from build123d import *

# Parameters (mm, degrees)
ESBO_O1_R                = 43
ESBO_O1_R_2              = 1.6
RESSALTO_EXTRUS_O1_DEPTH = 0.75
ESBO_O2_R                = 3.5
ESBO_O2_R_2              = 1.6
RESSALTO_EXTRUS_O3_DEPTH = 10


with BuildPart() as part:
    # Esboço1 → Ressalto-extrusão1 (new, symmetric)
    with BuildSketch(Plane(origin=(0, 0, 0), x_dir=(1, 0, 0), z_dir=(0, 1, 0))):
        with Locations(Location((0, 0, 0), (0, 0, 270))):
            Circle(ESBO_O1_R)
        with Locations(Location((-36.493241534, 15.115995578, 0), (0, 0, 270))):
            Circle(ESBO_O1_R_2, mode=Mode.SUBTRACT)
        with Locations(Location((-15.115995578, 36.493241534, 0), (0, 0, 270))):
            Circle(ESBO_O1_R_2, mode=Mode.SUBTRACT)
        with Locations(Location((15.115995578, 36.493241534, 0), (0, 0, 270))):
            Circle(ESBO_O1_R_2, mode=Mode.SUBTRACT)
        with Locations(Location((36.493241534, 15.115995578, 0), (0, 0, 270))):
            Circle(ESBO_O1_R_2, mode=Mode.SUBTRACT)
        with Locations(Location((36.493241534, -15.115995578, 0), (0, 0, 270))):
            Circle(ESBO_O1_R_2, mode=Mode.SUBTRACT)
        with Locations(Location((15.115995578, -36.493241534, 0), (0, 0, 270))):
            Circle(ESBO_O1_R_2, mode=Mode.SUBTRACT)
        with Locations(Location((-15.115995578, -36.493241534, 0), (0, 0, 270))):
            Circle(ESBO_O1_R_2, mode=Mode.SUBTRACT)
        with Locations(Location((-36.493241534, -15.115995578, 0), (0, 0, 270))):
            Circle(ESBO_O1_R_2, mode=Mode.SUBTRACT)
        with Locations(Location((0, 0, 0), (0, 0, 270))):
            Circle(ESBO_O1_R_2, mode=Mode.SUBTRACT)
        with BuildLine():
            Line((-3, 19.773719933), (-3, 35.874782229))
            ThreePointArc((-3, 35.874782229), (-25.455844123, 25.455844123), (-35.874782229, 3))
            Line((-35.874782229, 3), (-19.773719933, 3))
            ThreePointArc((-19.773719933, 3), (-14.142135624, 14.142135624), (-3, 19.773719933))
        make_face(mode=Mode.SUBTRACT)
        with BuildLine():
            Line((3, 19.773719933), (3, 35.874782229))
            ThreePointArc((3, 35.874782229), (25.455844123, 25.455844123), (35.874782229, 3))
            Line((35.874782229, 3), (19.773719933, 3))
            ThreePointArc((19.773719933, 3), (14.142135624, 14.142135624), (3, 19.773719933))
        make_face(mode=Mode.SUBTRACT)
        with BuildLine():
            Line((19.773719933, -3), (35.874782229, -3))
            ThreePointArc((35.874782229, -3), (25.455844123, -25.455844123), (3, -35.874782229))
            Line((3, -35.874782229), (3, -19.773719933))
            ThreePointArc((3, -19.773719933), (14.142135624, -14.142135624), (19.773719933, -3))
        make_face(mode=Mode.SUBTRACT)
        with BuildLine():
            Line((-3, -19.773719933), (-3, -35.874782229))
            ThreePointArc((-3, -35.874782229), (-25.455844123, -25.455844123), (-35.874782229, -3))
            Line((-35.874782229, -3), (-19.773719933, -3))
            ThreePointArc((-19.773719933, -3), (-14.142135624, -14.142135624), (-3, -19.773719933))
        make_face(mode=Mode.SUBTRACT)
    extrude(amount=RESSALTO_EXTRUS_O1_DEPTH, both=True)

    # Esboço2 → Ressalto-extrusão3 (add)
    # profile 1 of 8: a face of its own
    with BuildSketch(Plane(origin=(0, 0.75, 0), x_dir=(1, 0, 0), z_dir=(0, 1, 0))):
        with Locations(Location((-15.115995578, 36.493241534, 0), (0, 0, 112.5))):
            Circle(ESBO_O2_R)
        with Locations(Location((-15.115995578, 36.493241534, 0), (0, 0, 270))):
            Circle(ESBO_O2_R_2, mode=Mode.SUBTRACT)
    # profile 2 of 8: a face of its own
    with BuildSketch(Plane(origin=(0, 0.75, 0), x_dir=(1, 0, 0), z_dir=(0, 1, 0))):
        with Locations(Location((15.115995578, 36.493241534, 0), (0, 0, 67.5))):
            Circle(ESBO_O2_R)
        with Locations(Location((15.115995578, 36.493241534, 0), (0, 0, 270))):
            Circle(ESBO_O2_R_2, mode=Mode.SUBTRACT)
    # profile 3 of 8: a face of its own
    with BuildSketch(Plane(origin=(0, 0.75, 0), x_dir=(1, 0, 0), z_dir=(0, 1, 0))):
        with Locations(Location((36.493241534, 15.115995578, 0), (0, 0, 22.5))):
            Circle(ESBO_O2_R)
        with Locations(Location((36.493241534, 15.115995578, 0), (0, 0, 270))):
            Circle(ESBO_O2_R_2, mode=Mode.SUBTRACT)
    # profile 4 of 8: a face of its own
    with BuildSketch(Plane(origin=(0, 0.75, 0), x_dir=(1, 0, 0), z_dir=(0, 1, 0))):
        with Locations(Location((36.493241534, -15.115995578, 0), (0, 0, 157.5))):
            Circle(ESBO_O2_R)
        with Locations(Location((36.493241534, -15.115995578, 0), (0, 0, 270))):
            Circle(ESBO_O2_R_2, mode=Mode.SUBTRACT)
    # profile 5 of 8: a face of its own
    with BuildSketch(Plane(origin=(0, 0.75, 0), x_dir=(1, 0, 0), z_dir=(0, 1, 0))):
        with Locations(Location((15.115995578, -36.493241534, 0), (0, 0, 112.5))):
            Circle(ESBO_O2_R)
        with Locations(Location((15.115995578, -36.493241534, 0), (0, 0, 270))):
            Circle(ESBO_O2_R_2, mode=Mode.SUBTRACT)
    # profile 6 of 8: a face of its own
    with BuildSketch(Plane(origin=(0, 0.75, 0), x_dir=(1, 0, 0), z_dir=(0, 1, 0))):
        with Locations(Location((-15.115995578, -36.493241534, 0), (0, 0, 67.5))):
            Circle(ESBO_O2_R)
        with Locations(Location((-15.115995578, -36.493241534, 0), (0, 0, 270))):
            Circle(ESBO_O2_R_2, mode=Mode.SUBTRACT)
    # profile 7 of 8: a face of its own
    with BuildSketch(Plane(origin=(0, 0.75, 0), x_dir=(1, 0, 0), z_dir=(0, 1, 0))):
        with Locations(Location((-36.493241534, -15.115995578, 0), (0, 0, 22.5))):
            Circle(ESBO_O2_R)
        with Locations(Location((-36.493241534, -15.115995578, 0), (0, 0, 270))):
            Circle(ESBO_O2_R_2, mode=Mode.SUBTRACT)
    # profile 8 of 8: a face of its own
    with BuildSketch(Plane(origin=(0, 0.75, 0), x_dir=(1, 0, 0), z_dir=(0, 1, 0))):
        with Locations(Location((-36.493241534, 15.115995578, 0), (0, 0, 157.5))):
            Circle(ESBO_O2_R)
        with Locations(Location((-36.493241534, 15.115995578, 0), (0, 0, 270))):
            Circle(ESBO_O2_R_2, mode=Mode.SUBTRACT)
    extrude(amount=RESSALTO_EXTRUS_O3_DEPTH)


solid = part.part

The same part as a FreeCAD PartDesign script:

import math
import FreeCAD as App
import Part
import Sketcher
from FreeCAD import Vector
Q = App.Units.Quantity

doc = App.newDocument("Part")
body = doc.addObject("PartDesign::Body", "Body")

# Sketch on XZ plane
sketch1 = body.newObject("Sketcher::SketchObject", "Sketch")
sketch1.AttachmentSupport = (doc.getObject("XZ_Plane"), [""])
sketch1.MapMode = "FlatFace"
sketch1.addGeometry(Part.Circle(Vector(0, 0, 0), Vector(0, 0, 1), 43), False)
sketch1.addGeometry(Part.LineSegment(Vector(-3, -35.9, 0), Vector(-3, -19.8, 0)), False)
sketch1.addGeometry(Part.ArcOfCircle(Part.Circle(Vector(0, 0, 0), Vector(0, 0, 1), 20), math.radians(-171), math.radians(-99)), False)
sketch1.addGeometry(Part.LineSegment(Vector(-19.8, -3, 0), Vector(-35.9, -3, 0)), False)
sketch1.addGeometry(Part.ArcOfCircle(Part.Circle(Vector(0, 0, 0), Vector(0, 0, 1), 36), math.radians(-175), math.radians(-95)), False)
sketch1.addGeometry(Part.Circle(Vector(-36.5, -15.1, 0), Vector(0, 0, 1), 1.6), False)
sketch1.addGeometry(Part.Circle(Vector(-15.1, -36.5, 0), Vector(0, 0, 1), 1.6), False)
sketch1.addGeometry(Part.Circle(Vector(-36.5, 15.1, 0), Vector(0, 0, 1), 1.6), False)
sketch1.addGeometry(Part.ArcOfCircle(Part.Circle(Vector(0, 0, 0), Vector(0, 0, 1), 20), math.radians(99), math.radians(171)), False)
sketch1.addGeometry(Part.LineSegment(Vector(-3, 19.8, 0), Vector(-3, 35.9, 0)), False)
sketch1.addGeometry(Part.ArcOfCircle(Part.Circle(Vector(0, 0, 0), Vector(0, 0, 1), 36), math.radians(95), math.radians(175)), False)
sketch1.addGeometry(Part.LineSegment(Vector(-35.9, 3, 0), Vector(-19.8, 3, 0)), False)
sketch1.addGeometry(Part.Circle(Vector(-15.1, 36.5, 0), Vector(0, 0, 1), 1.6), False)
sketch1.addGeometry(Part.Circle(Vector(15.1, -36.5, 0), Vector(0, 0, 1), 1.6), False)
sketch1.addGeometry(Part.ArcOfCircle(Part.Circle(Vector(0, 0, 0), Vector(0, 0, 1), 20), math.radians(-81), math.radians(-9)), False)
sketch1.addGeometry(Part.LineSegment(Vector(3, -19.8, 0), Vector(3, -35.9, 0)), False)
sketch1.addGeometry(Part.ArcOfCircle(Part.Circle(Vector(0, 0, 0), Vector(0, 0, 1), 36), math.radians(-85), math.radians(-5)), False)
sketch1.addGeometry(Part.LineSegment(Vector(35.9, -3, 0), Vector(19.8, -3, 0)), False)
sketch1.addGeometry(Part.Circle(Vector(36.5, -15.1, 0), Vector(0, 0, 1), 1.6), False)
sketch1.addGeometry(Part.Circle(Vector(0, 0, 0), Vector(0, 0, 1), 1.6), False)
sketch1.addGeometry(Part.Circle(Vector(15.1, 36.5, 0), Vector(0, 0, 1), 1.6), False)
sketch1.addGeometry(Part.Circle(Vector(36.5, 15.1, 0), Vector(0, 0, 1), 1.6), False)
sketch1.addGeometry(Part.ArcOfCircle(Part.Circle(Vector(0, 0, 0), Vector(0, 0, 1), 20), math.radians(9), math.radians(81)), False)
sketch1.addGeometry(Part.LineSegment(Vector(19.8, 3, 0), Vector(35.9, 3, 0)), False)
sketch1.addGeometry(Part.ArcOfCircle(Part.Circle(Vector(0, 0, 0), Vector(0, 0, 1), 36), math.radians(5), math.radians(85)), False)
sketch1.addGeometry(Part.LineSegment(Vector(3, 35.9, 0), Vector(3, 19.8, 0)), False)
sketch1.addConstraint(Sketcher.Constraint("Coincident", 1, 2, 2, 2))
sketch1.addConstraint(Sketcher.Constraint("Coincident", 2, 1, 3, 1))
sketch1.addConstraint(Sketcher.Constraint("Coincident", 3, 2, 4, 1))
sketch1.addConstraint(Sketcher.Constraint("Coincident", 4, 2, 1, 1))
sketch1.addConstraint(Sketcher.Constraint("Coincident", 8, 1, 9, 1))
sketch1.addConstraint(Sketcher.Constraint("Coincident", 9, 2, 10, 1))
sketch1.addConstraint(Sketcher.Constraint("Coincident", 10, 2, 11, 1))
sketch1.addConstraint(Sketcher.Constraint("Coincident", 11, 2, 8, 2))
sketch1.addConstraint(Sketcher.Constraint("Coincident", 14, 1, 15, 1))
sketch1.addConstraint(Sketcher.Constraint("Coincident", 15, 2, 16, 1))
sketch1.addConstraint(Sketcher.Constraint("Coincident", 16, 2, 17, 1))
sketch1.addConstraint(Sketcher.Constraint("Coincident", 17, 2, 14, 2))
sketch1.addConstraint(Sketcher.Constraint("Coincident", 22, 1, 23, 1))
sketch1.addConstraint(Sketcher.Constraint("Coincident", 23, 2, 24, 1))
sketch1.addConstraint(Sketcher.Constraint("Coincident", 24, 2, 25, 1))
sketch1.addConstraint(Sketcher.Constraint("Coincident", 25, 2, 22, 2))
sketch1.addConstraint(Sketcher.Constraint("Vertical", 1))
sketch1.addConstraint(Sketcher.Constraint("Horizontal", 3))
sketch1.addConstraint(Sketcher.Constraint("Vertical", 9))
sketch1.addConstraint(Sketcher.Constraint("Horizontal", 11))
sketch1.addConstraint(Sketcher.Constraint("Vertical", 15))
sketch1.addConstraint(Sketcher.Constraint("Horizontal", 17))
sketch1.addConstraint(Sketcher.Constraint("Horizontal", 23))
sketch1.addConstraint(Sketcher.Constraint("Vertical", 25))
sketch1.addConstraint(Sketcher.Constraint("Coincident", 0, 3, -1, 1))
sketch1.addConstraint(Sketcher.Constraint("Coincident", 2, 3, -1, 1))
sketch1.addConstraint(Sketcher.Constraint("Coincident", 4, 3, -1, 1))
sketch1.addConstraint(Sketcher.Constraint("Coincident", 8, 3, -1, 1))
sketch1.addConstraint(Sketcher.Constraint("Coincident", 10, 3, -1, 1))
sketch1.addConstraint(Sketcher.Constraint("Coincident", 14, 3, -1, 1))
sketch1.addConstraint(Sketcher.Constraint("Coincident", 16, 3, -1, 1))
sketch1.addConstraint(Sketcher.Constraint("Coincident", 19, 3, -1, 1))
sketch1.addConstraint(Sketcher.Constraint("Coincident", 22, 3, -1, 1))
sketch1.addConstraint(Sketcher.Constraint("Coincident", 24, 3, -1, 1))
sketch1.addConstraint(Sketcher.Constraint("Equal", 5, 6))
sketch1.addConstraint(Sketcher.Constraint("Equal", 6, 7))
sketch1.addConstraint(Sketcher.Constraint("Equal", 2, 8))
sketch1.addConstraint(Sketcher.Constraint("Equal", 4, 10))
sketch1.addConstraint(Sketcher.Constraint("Equal", 7, 12))
sketch1.addConstraint(Sketcher.Constraint("Equal", 12, 13))
sketch1.addConstraint(Sketcher.Constraint("Equal", 8, 14))
sketch1.addConstraint(Sketcher.Constraint("Equal", 10, 16))
sketch1.addConstraint(Sketcher.Constraint("Equal", 13, 18))
sketch1.addConstraint(Sketcher.Constraint("Equal", 18, 19))
sketch1.addConstraint(Sketcher.Constraint("Equal", 19, 20))
sketch1.addConstraint(Sketcher.Constraint("Equal", 20, 21))
sketch1.addConstraint(Sketcher.Constraint("Equal", 14, 22))
sketch1.addConstraint(Sketcher.Constraint("Equal", 16, 24))
sketch1.addConstraint(Sketcher.Constraint("Symmetric", 12, 3, 13, 3, -1, 1))
sketch1.addConstraint(Sketcher.Constraint("Symmetric", 7, 3, 18, 3, -1, 1))
sketch1.addConstraint(Sketcher.Constraint("Symmetric", 6, 3, 20, 3, -1, 1))
sketch1.addConstraint(Sketcher.Constraint("Symmetric", 5, 3, 21, 3, -1, 1))
sketch1.addConstraint(Sketcher.Constraint("Symmetric", 6, 3, 13, 3, -2))
sketch1.addConstraint(Sketcher.Constraint("Symmetric", 5, 3, 18, 3, -2))
sketch1.addConstraint(Sketcher.Constraint("Horizontal", 1, 2, 14, 1))
sketch1.addConstraint(Sketcher.Constraint("Horizontal", 3, 2, 16, 2))
sketch1.addConstraint(Sketcher.Constraint("Horizontal", 11, 2, 22, 1))
sketch1.addConstraint(Sketcher.Constraint("Horizontal", 9, 2, 24, 2))
sketch1.addConstraint(Sketcher.Constraint("Vertical", 4, 2, 8, 1))
sketch1.addConstraint(Sketcher.Constraint("Vertical", 3, 2, 10, 2))
sketch1.addConstraint(Sketcher.Constraint("Equal", 23, 1))
sketch1.addConstraint(Sketcher.Constraint("Diameter", 0, Q("86 mm")))
sketch1.addConstraint(Sketcher.Constraint("Radius", 2, Q("20 mm")))
sketch1.addConstraint(Sketcher.Constraint("Radius", 4, Q("36 mm")))
sketch1.addConstraint(Sketcher.Constraint("Diameter", 5, Q("3.2 mm")))
sketch1.addConstraint(Sketcher.Constraint("DistanceX", 1, 2, -1, 1, Q("3 mm")))
sketch1.addConstraint(Sketcher.Constraint("DistanceX", 5, 3, -1, 1, Q("36.493242 mm")))
sketch1.addConstraint(Sketcher.Constraint("DistanceY", 6, 3, -1, 1, Q("36.493242 mm")))
sketch1.addConstraint(Sketcher.Constraint("DistanceY", 5, 3, 7, 3, Q("30.231991 mm")))
sketch1.addConstraint(Sketcher.Constraint("DistanceX", 6, 3, 13, 3, Q("30.231991 mm")))
pad1 = body.newObject("PartDesign::Pad", "Pad")
pad1.Profile = sketch1
pad1.Length = 1.5
pad1.Midplane = True

# Sketch on XZ plane
sketch2 = body.newObject("Sketcher::SketchObject", "Sketch001")
sketch2.AttachmentSupport = (doc.getObject("XZ_Plane"), [""])
sketch2.MapMode = "FlatFace"
sketch2.AttachmentOffset = App.Placement(Vector(0, 0, -0.75), App.Rotation())
sketch2.addGeometry(Part.Circle(Vector(-15.1, -36.5, 0), Vector(0, 0, 1), 3.5), False)
sketch2.addGeometry(Part.Circle(Vector(-15.1, -36.5, 0), Vector(0, 0, 1), 1.6), False)
sketch2.addGeometry(Part.Circle(Vector(15.1, -36.5, 0), Vector(0, 0, 1), 3.5), False)
sketch2.addGeometry(Part.Circle(Vector(15.1, -36.5, 0), Vector(0, 0, 1), 1.6), False)
sketch2.addGeometry(Part.Circle(Vector(36.5, -15.1, 0), Vector(0, 0, 1), 3.5), False)
sketch2.addGeometry(Part.Circle(Vector(36.5, -15.1, 0), Vector(0, 0, 1), 1.6), False)
sketch2.addGeometry(Part.Circle(Vector(36.5, 15.1, 0), Vector(0, 0, 1), 3.5), False)
sketch2.addGeometry(Part.Circle(Vector(36.5, 15.1, 0), Vector(0, 0, 1), 1.6), False)
sketch2.addGeometry(Part.Circle(Vector(15.1, 36.5, 0), Vector(0, 0, 1), 3.5), False)
sketch2.addGeometry(Part.Circle(Vector(15.1, 36.5, 0), Vector(0, 0, 1), 1.6), False)
sketch2.addGeometry(Part.Circle(Vector(-15.1, 36.5, 0), Vector(0, 0, 1), 3.5), False)
sketch2.addGeometry(Part.Circle(Vector(-15.1, 36.5, 0), Vector(0, 0, 1), 1.6), False)
sketch2.addGeometry(Part.Circle(Vector(-36.5, 15.1, 0), Vector(0, 0, 1), 3.5), False)
sketch2.addGeometry(Part.Circle(Vector(-36.5, 15.1, 0), Vector(0, 0, 1), 1.6), False)
sketch2.addGeometry(Part.Circle(Vector(-36.5, -15.1, 0), Vector(0, 0, 1), 3.5), False)
sketch2.addGeometry(Part.Circle(Vector(-36.5, -15.1, 0), Vector(0, 0, 1), 1.6), False)
sketch2.addConstraint(Sketcher.Constraint("Coincident", 1, 3, 0, 3))
sketch2.addConstraint(Sketcher.Constraint("Coincident", 3, 3, 2, 3))
sketch2.addConstraint(Sketcher.Constraint("Coincident", 5, 3, 4, 3))
sketch2.addConstraint(Sketcher.Constraint("Coincident", 7, 3, 6, 3))
sketch2.addConstraint(Sketcher.Constraint("Coincident", 9, 3, 8, 3))
sketch2.addConstraint(Sketcher.Constraint("Coincident", 11, 3, 10, 3))
sketch2.addConstraint(Sketcher.Constraint("Coincident", 13, 3, 12, 3))
sketch2.addConstraint(Sketcher.Constraint("Coincident", 15, 3, 14, 3))
sketch2.addConstraint(Sketcher.Constraint("Equal", 0, 2))
sketch2.addConstraint(Sketcher.Constraint("Equal", 1, 3))
sketch2.addConstraint(Sketcher.Constraint("Equal", 2, 4))
sketch2.addConstraint(Sketcher.Constraint("Equal", 3, 5))
sketch2.addConstraint(Sketcher.Constraint("Equal", 4, 6))
sketch2.addConstraint(Sketcher.Constraint("Equal", 5, 7))
sketch2.addConstraint(Sketcher.Constraint("Equal", 6, 8))
sketch2.addConstraint(Sketcher.Constraint("Equal", 7, 9))
sketch2.addConstraint(Sketcher.Constraint("Equal", 8, 10))
sketch2.addConstraint(Sketcher.Constraint("Equal", 9, 11))
sketch2.addConstraint(Sketcher.Constraint("Equal", 10, 12))
sketch2.addConstraint(Sketcher.Constraint("Equal", 11, 13))
sketch2.addConstraint(Sketcher.Constraint("Equal", 12, 14))
sketch2.addConstraint(Sketcher.Constraint("Equal", 13, 15))
sketch2.addConstraint(Sketcher.Constraint("Symmetric", 0, 3, 8, 3, -1, 1))
sketch2.addConstraint(Sketcher.Constraint("Symmetric", 2, 3, 10, 3, -1, 1))
sketch2.addConstraint(Sketcher.Constraint("Symmetric", 4, 3, 12, 3, -1, 1))
sketch2.addConstraint(Sketcher.Constraint("Symmetric", 6, 3, 14, 3, -1, 1))
sketch2.addConstraint(Sketcher.Constraint("Symmetric", 0, 3, 2, 3, -2))
sketch2.addConstraint(Sketcher.Constraint("Symmetric", 6, 3, 12, 3, -2))
sketch2.addConstraint(Sketcher.Constraint("Diameter", 0, Q("7 mm")))
sketch2.addConstraint(Sketcher.Constraint("Diameter", 1, Q("3.2 mm")))
sketch2.addConstraint(Sketcher.Constraint("DistanceY", 0, 3, -1, 1, Q("36.493242 mm")))
sketch2.addConstraint(Sketcher.Constraint("DistanceX", -1, 1, 4, 3, Q("36.493242 mm")))
sketch2.addConstraint(Sketcher.Constraint("DistanceX", 0, 3, 2, 3, Q("30.231991 mm")))
sketch2.addConstraint(Sketcher.Constraint("DistanceY", 4, 3, 6, 3, Q("30.231991 mm")))
pad2 = body.newObject("PartDesign::Pad", "Pad001")
pad2.Profile = sketch2
pad2.Length = 10
pad2.Reversed = True

doc.recompute()
